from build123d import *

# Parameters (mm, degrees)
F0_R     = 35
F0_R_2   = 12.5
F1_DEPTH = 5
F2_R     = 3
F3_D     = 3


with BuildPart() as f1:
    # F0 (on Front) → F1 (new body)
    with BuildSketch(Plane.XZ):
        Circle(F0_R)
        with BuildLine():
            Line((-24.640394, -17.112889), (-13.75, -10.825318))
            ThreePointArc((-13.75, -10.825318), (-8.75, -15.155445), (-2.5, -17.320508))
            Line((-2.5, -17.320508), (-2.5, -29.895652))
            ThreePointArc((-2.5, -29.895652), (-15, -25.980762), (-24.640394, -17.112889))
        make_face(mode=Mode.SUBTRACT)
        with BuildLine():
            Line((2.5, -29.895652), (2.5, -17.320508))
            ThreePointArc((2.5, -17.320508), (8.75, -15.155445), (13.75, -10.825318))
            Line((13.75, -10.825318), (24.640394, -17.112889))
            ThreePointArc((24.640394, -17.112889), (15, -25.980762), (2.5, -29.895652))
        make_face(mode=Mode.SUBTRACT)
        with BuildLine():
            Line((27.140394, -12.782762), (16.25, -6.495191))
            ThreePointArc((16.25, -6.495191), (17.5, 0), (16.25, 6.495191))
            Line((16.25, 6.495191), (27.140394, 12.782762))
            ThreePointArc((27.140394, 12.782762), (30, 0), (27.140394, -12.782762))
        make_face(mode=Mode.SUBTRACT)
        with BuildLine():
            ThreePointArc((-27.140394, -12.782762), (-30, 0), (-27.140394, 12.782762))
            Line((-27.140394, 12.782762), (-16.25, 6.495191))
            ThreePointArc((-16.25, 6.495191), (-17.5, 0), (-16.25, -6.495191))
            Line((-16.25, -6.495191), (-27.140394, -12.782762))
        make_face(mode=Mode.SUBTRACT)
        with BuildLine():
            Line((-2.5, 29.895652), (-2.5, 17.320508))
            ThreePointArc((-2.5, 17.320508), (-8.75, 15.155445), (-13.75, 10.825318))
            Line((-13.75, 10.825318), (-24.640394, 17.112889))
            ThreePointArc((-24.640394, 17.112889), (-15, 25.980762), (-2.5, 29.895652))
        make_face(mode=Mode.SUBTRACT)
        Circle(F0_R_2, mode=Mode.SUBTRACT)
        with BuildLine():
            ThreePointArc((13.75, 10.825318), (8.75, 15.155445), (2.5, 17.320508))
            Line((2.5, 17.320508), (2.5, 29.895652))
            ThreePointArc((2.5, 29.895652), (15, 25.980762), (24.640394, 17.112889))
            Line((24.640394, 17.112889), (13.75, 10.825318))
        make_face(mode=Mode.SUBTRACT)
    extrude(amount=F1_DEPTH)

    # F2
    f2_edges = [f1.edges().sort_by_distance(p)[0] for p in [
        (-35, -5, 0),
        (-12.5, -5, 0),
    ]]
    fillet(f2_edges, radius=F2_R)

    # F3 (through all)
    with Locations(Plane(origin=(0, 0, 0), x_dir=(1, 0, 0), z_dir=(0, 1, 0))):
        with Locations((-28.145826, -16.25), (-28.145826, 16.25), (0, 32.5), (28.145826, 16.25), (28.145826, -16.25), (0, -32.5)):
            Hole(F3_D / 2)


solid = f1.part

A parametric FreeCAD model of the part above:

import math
import FreeCAD as App
import Part
import Sketcher
from FreeCAD import Vector
Q = App.Units.Quantity


def edges_at(feature, points):
    """Names of the edges that pass closest to the given points."""
    edges = feature.Shape.Edges
    near = lambda p: min(range(len(edges)), key=lambda i: edges[i].distToShape(Part.Vertex(*p))[0])
    return sorted({f"Edge{near(p) + 1}" for p in points})

doc = App.newDocument("Part")
body = doc.addObject("PartDesign::Body", "Body")

# Sketch on XZ plane
sketch1 = body.newObject("Sketcher::SketchObject", "Sketch")
sketch1.AttachmentSupport = (doc.getObject("XZ_Plane"), [""])
sketch1.MapMode = "FlatFace"
sketch1.addGeometry(Part.Circle(Vector(0, 0, 0), Vector(0, 0, 1), 35), False)
sketch1.addGeometry(Part.ArcOfCircle(Part.Circle(Vector(0, 0, 0), Vector(0, 0, 1), 30), math.radians(-145), math.radians(-95)), False)
sketch1.addGeometry(Part.LineSegment(Vector(-25, -17, 0), Vector(-14, -11, 0)), False)
sketch1.addGeometry(Part.ArcOfCircle(Part.Circle(Vector(0, 0, 0), Vector(0, 0, 1), 17), math.radians(-142), math.radians(-98)), False)
sketch1.addGeometry(Part.LineSegment(Vector(-2, -17, 0), Vector(-2, -30, 0)), False)
sketch1.addGeometry(Part.LineSegment(Vector(-16, -6, 0), Vector(-27, -13, 0)), False)
sketch1.addGeometry(Part.ArcOfCircle(Part.Circle(Vector(0, 0, 0), Vector(0, 0, 1), 30), math.radians(155), math.radians(205)), False)
sketch1.addGeometry(Part.LineSegment(Vector(-27, 13, 0), Vector(-16, 6, 0)), False)
sketch1.addGeometry(Part.ArcOfCircle(Part.Circle(Vector(0, 0, 0), Vector(0, 0, 1), 18), math.radians(158), math.radians(202)), False)
sketch1.addGeometry(Part.ArcOfCircle(Part.Circle(Vector(0, 0, 0), Vector(0, 0, 1), 30), math.radians(-85), math.radians(-35)), False)
sketch1.addGeometry(Part.LineSegment(Vector(2, -30, 0), Vector(2, -17, 0)), False)
sketch1.addGeometry(Part.ArcOfCircle(Part.Circle(Vector(0, 0, 0), Vector(0, 0, 1), 17), math.radians(-82), math.radians(-38)), False)
sketch1.addGeometry(Part.LineSegment(Vector(14, -11, 0), Vector(25, -17, 0)), False)
sketch1.addGeometry(Part.ArcOfCircle(Part.Circle(Vector(0, 0, 0), Vector(0, 0, 1), 30), math.radians(95), math.radians(145)), False)
sketch1.addGeometry(Part.LineSegment(Vector(-2, 30, 0), Vector(-2, 17, 0)), False)
sketch1.addGeometry(Part.ArcOfCircle(Part.Circle(Vector(0, 0, 0), Vector(0, 0, 1), 17), math.radians(98), math.radians(142)), False)
sketch1.addGeometry(Part.LineSegment(Vector(-14, 11, 0), Vector(-25, 17, 0)), False)
sketch1.addGeometry(Part.Circle(Vector(0, 0, 0), Vector(0, 0, 1), 12), False)
sketch1.addGeometry(Part.ArcOfCircle(Part.Circle(Vector(0, 0, 0), Vector(0, 0, 1), 30), math.radians(-25), math.radians(25)), False)
sketch1.addGeometry(Part.LineSegment(Vector(27, -13, 0), Vector(16, -6, 0)), False)
sketch1.addGeometry(Part.ArcOfCircle(Part.Circle(Vector(0, 0, 0), Vector(0, 0, 1), 18), math.radians(-22), math.radians(22)), False)
sketch1.addGeometry(Part.LineSegment(Vector(16, 6, 0), Vector(27, 13, 0)), False)
sketch1.addGeometry(Part.LineSegment(Vector(25, 17, 0), Vector(14, 11, 0)), False)
sketch1.addGeometry(Part.ArcOfCircle(Part.Circle(Vector(0, 0, 0), Vector(0, 0, 1), 17), math.radians(38), math.radians(82)), False)
sketch1.addGeometry(Part.LineSegment(Vector(2, 17, 0), Vector(2, 30, 0)), False)
sketch1.addGeometry(Part.ArcOfCircle(Part.Circle(Vector(0, 0, 0), Vector(0, 0, 1), 30), math.radians(35), math.radians(85)), False)
sketch1.addConstraint(Sketcher.Constraint("Coincident", 1, 1, 2, 1))
sketch1.addConstraint(Sketcher.Constraint("Coincident", 2, 2, 3, 1))
sketch1.addConstraint(Sketcher.Constraint("Coincident", 3, 2, 4, 1))
sketch1.addConstraint(Sketcher.Constraint("Coincident", 4, 2, 1, 2))
sketch1.addConstraint(Sketcher.Constraint("Coincident", 5, 2, 6, 2))
sketch1.addConstraint(Sketcher.Constraint("Coincident", 6, 1, 7, 1))
sketch1.addConstraint(Sketcher.Constraint("Coincident", 7, 2, 8, 1))
sketch1.addConstraint(Sketcher.Constraint("Coincident", 8, 2, 5, 1))
sketch1.addConstraint(Sketcher.Constraint("Coincident", 9, 1, 10, 1))
sketch1.addConstraint(Sketcher.Constraint("Coincident", 10, 2, 11, 1))
sketch1.addConstraint(Sketcher.Constraint("Coincident", 11, 2, 12, 1))
sketch1.addConstraint(Sketcher.Constraint("Coincident", 12, 2, 9, 2))
sketch1.addConstraint(Sketcher.Constraint("Coincident", 13, 1, 14, 1))
sketch1.addConstraint(Sketcher.Constraint("Coincident", 14, 2, 15, 1))
sketch1.addConstraint(Sketcher.Constraint("Coincident", 15, 2, 16, 1))
sketch1.addConstraint(Sketcher.Constraint("Coincident", 16, 2, 13, 2))
sketch1.addConstraint(Sketcher.Constraint("Coincident", 18, 1, 19, 1))
sketch1.addConstraint(Sketcher.Constraint("Coincident", 19, 2, 20, 1))
sketch1.addConstraint(Sketcher.Constraint("Coincident", 20, 2, 21, 1))
sketch1.addConstraint(Sketcher.Constraint("Coincident", 21, 2, 18, 2))
sketch1.addConstraint(Sketcher.Constraint("Coincident", 22, 2, 23, 1))
sketch1.addConstraint(Sketcher.Constraint("Coincident", 23, 2, 24, 1))
sketch1.addConstraint(Sketcher.Constraint("Coincident", 24, 2, 25, 2))
sketch1.addConstraint(Sketcher.Constraint("Coincident", 25, 1, 22, 1))
sketch1.addConstraint(Sketcher.Constraint("Vertical", 4))
sketch1.addConstraint(Sketcher.Constraint("Vertical", 10))
sketch1.addConstraint(Sketcher.Constraint("Vertical", 14))
sketch1.addConstraint(Sketcher.Constraint("Vertical", 24))
sketch1.addConstraint(Sketcher.Constraint("Coincident", 0, 3, -1, 1))
sketch1.addConstraint(Sketcher.Constraint("Coincident", 1, 3, -1, 1))
sketch1.addConstraint(Sketcher.Constraint("Coincident", 3, 3, -1, 1))
sketch1.addConstraint(Sketcher.Constraint("Coincident", 6, 3, -1, 1))
sketch1.addConstraint(Sketcher.Constraint("Coincident", 8, 3, -1, 1))
sketch1.addConstraint(Sketcher.Constraint("Coincident", 9, 3, -1, 1))
sketch1.addConstraint(Sketcher.Constraint("Coincident", 11, 3, -1, 1))
sketch1.addConstraint(Sketcher.Constraint("Coincident", 13, 3, -1, 1))
sketch1.addConstraint(Sketcher.Constraint("Coincident", 15, 3, -1, 1))
sketch1.addConstraint(Sketcher.Constraint("Coincident", 17, 3, -1, 1))
sketch1.addConstraint(Sketcher.Constraint("Coincident", 18, 3, -1, 1))
sketch1.addConstraint(Sketcher.Constraint("Coincident", 20, 3, -1, 1))
sketch1.addConstraint(Sketcher.Constraint("Coincident", 23, 3, -1, 1))
sketch1.addConstraint(Sketcher.Constraint("Coincident", 25, 3, -1, 1))
sketch1.addConstraint(Sketcher.Constraint("Equal", 1, 9))
sketch1.addConstraint(Sketcher.Constraint("Equal", 3, 11))
sketch1.addConstraint(Sketcher.Constraint("Equal", 9, 13))
sketch1.addConstraint(Sketcher.Constraint("Equal", 11, 15))
sketch1.addConstraint(Sketcher.Constraint("Equal", 6, 18))
sketch1.addConstraint(Sketcher.Constraint("Equal", 8, 20))
sketch1.addConstraint(Sketcher.Constraint("Equal", 15, 23))
sketch1.addConstraint(Sketcher.Constraint("Equal", 13, 25))
sketch1.addConstraint(Sketcher.Constraint("Parallel", 2, 5))
sketch1.addConstraint(Sketcher.Constraint("Parallel", 7, 12))
sketch1.addConstraint(Sketcher.Constraint("Parallel", 12, 16))
sketch1.addConstraint(Sketcher.Constraint("Parallel", 16, 19))
sketch1.addConstraint(Sketcher.Constraint("Parallel", 5, 21))
sketch1.addConstraint(Sketcher.Constraint("Parallel", 21, 22))
sketch1.addConstraint(Sketcher.Constraint("Horizontal", 4, 2, 9, 1))
sketch1.addConstraint(Sketcher.Constraint("Horizontal", 2, 2, 11, 2))
sketch1.addConstraint(Sketcher.Constraint("Horizontal", 1, 1, 12, 2))
sketch1.addConstraint(Sketcher.Constraint("Horizontal", 5, 2, 18, 1))
sketch1.addConstraint(Sketcher.Constraint("Horizontal", 7, 2, 20, 2))
sketch1.addConstraint(Sketcher.Constraint("Horizontal", 15, 2, 22, 2))
sketch1.addConstraint(Sketcher.Constraint("Horizontal", 14, 2, 23, 2))
sketch1.addConstraint(Sketcher.Constraint("Vertical", 5, 2, 6, 1))
sketch1.addConstraint(Sketcher.Constraint("Vertical", 4, 2, 13, 1))
sketch1.addConstraint(Sketcher.Constraint("Vertical", 2, 2, 15, 2))
sketch1.addConstraint(Sketcher.Constraint("Equal", 2, 5))
sketch1.addConstraint(Sketcher.Constraint("Diameter", 0, Q("70 mm")))
sketch1.addConstraint(Sketcher.Constraint("Diameter", 17, Q("25 mm")))
sketch1.addConstraint(Sketcher.Constraint("Radius", 1, Q("30 mm")))
sketch1.addConstraint(Sketcher.Constraint("Radius", 6, Q("29.999998 mm")))
sketch1.addConstraint(Sketcher.Constraint("Angle", 2, Q("29.999996 deg")))
sketch1.addConstraint(Sketcher.Constraint("DistanceX", 4, 2, 9, 1, Q("5 mm")))
sketch1.addConstraint(Sketcher.Constraint("DistanceX", 5, 2, 1, 1, Q("2.5 mm")))
sketch1.addConstraint(Sketcher.Constraint("DistanceX", 2, 2, -1, 1, Q("13.75 mm")))
sketch1.addConstraint(Sketcher.Constraint("Radius", 3, Q("17.499997 mm")))
pad1 = body.newObject("PartDesign::Pad", "Pad")
pad1.Profile = sketch1
pad1.Length = 5
doc.recompute()

fillet = body.newObject("PartDesign::Fillet", "Fillet")
fillet.Base = (pad1, edges_at(pad1, [(-35, -5, 0), (-12.5, -5, 0)]))
fillet.Radius = 3

# Sketch on XZ plane
sketch2 = body.newObject("Sketcher::SketchObject", "Sketch001")
sketch2.AttachmentSupport = (doc.getObject("XZ_Plane"), [""])
sketch2.MapMode = "FlatFace"
sketch2.addGeometry(Part.Circle(Vector(-28.1, 16.2, 0), Vector(0, 0, 1), 1.5), False)
sketch2.addGeometry(Part.Circle(Vector(-28.1, -16.2, 0), Vector(0, 0, 1), 1.5), False)
sketch2.addGeometry(Part.Circle(Vector(0, -32.5, 0), Vector(0, 0, 1), 1.5), False)
sketch2.addGeometry(Part.Circle(Vector(28.1, -16.2, 0), Vector(0, 0, 1), 1.5), False)
sketch2.addGeometry(Part.Circle(Vector(28.1, 16.2, 0), Vector(0, 0, 1), 1.5), False)
sketch2.addGeometry(Part.Circle(Vector(0, 32.5, 0), Vector(0, 0, 1), 1.5), False)
sketch2.addConstraint(Sketcher.Constraint("Equal", 0, 1))
sketch2.addConstraint(Sketcher.Constraint("Equal", 1, 2))
sketch2.addConstraint(Sketcher.Constraint("Equal", 2, 3))
sketch2.addConstraint(Sketcher.Constraint("Equal", 3, 4))
sketch2.addConstraint(Sketcher.Constraint("Equal", 4, 5))
sketch2.addConstraint(Sketcher.Constraint("Symmetric", 0, 3, 3, 3, -1, 1))
sketch2.addConstraint(Sketcher.Constraint("Symmetric", 1, 3, 4, 3, -1, 1))
sketch2.addConstraint(Sketcher.Constraint("Symmetric", 2, 3, 5, 3, -1, 1))
sketch2.addConstraint(Sketcher.Constraint("Symmetric", 1, 3, 3, 3, -2))
sketch2.addConstraint(Sketcher.Constraint("PointOnObject", 2, 3, -2))
sketch2.addConstraint(Sketcher.Constraint("Diameter", 0, Q("3 mm")))
sketch2.addConstraint(Sketcher.Constraint("DistanceY", 2, 3, 5, 3, Q("65 mm")))
sketch2.addConstraint(Sketcher.Constraint("DistanceY", 1, 3, 0, 3, Q("32.5 mm")))
sketch2.addConstraint(Sketcher.Constraint("DistanceX", 0, 3, -1, 1, Q("28.145826 mm")))
doc.recompute()
hole = body.newObject("PartDesign::Hole", "Hole")
hole.Profile = sketch2
hole.ThreadType = "None"
hole.Diameter = 3
hole.DepthType = "ThroughAll"
hole.Reversed = True

doc.recompute()
